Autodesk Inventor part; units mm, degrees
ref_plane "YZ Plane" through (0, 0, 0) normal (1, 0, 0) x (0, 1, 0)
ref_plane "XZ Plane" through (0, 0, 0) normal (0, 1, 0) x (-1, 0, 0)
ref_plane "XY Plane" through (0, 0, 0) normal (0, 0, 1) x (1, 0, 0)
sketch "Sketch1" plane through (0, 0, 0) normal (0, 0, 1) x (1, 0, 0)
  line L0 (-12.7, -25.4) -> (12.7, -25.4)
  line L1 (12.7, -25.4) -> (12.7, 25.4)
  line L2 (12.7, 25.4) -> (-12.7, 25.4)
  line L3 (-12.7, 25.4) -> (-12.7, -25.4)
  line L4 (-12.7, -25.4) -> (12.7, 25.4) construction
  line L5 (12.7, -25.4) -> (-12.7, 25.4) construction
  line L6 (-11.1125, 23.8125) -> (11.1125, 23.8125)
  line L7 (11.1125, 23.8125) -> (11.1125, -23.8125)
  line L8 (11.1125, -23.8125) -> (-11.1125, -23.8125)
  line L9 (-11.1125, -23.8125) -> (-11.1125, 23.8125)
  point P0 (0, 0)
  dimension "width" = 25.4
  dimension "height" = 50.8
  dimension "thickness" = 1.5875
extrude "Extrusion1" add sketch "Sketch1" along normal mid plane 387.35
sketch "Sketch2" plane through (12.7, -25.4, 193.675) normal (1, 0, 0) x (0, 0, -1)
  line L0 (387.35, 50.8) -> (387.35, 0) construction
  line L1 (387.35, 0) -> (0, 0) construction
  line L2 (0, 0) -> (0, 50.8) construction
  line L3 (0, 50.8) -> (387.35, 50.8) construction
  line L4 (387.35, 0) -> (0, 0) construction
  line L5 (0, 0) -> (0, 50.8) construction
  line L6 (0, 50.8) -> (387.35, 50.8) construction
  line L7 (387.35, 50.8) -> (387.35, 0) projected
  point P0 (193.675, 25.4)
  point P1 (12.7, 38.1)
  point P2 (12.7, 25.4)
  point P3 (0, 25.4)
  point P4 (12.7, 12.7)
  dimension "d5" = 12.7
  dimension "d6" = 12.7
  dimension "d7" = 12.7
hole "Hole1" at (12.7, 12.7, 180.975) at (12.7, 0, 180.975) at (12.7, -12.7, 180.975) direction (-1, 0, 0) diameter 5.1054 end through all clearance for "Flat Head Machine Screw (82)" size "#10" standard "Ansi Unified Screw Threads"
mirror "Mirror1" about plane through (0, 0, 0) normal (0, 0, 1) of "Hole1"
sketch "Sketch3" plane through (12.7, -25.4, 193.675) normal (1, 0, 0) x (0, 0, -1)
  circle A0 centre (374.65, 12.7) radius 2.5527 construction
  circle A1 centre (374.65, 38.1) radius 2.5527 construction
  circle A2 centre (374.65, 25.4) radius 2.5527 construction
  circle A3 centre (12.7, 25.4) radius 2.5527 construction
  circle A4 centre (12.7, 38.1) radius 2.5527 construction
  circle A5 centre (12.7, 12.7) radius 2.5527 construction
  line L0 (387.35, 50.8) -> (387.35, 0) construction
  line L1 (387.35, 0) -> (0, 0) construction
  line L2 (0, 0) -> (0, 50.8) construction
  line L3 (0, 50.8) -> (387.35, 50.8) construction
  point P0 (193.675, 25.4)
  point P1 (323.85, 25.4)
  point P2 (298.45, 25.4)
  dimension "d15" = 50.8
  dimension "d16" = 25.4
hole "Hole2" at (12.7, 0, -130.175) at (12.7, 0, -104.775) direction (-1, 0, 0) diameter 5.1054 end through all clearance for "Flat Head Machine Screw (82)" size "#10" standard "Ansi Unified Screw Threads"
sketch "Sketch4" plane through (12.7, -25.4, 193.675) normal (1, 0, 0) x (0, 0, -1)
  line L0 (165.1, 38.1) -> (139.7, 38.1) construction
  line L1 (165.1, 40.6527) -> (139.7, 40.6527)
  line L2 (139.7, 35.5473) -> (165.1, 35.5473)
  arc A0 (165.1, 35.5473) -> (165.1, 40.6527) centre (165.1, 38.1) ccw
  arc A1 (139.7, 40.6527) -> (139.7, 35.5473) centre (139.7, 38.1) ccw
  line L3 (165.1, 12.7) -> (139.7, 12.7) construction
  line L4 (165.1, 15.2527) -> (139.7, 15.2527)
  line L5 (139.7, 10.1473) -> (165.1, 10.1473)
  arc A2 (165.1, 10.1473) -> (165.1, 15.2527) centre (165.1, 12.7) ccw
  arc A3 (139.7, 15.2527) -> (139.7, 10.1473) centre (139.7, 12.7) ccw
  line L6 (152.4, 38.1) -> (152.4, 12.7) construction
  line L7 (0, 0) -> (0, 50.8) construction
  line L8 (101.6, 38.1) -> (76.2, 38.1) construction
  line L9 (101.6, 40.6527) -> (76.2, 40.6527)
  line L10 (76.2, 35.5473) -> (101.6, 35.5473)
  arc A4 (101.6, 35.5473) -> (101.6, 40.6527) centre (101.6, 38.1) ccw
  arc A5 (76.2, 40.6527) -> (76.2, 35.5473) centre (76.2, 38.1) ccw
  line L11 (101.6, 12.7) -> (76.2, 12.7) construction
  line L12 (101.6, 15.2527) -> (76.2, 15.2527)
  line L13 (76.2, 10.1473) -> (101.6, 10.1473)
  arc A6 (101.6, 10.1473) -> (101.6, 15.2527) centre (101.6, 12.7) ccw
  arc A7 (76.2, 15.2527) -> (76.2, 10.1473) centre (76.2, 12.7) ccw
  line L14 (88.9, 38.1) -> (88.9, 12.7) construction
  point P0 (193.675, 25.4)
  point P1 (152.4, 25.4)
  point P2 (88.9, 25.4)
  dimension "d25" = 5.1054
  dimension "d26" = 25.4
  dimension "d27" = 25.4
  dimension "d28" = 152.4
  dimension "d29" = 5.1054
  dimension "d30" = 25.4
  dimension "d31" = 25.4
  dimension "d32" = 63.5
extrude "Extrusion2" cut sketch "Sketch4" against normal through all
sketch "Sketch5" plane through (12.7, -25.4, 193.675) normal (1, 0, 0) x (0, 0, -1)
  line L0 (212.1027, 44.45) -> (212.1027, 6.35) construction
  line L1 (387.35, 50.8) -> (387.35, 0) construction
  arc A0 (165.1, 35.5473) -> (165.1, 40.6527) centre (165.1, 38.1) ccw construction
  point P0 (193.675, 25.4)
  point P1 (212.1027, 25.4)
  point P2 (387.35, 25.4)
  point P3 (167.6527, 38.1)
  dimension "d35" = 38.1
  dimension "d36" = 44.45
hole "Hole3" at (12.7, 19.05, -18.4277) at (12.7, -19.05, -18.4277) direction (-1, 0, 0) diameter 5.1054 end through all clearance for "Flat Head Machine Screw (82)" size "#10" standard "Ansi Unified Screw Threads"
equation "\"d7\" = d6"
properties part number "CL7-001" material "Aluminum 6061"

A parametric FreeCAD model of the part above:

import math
import FreeCAD as App
import Part
import Sketcher

V = App.Vector
Q = App.Units.Quantity

doc = App.newDocument("Part")
body = doc.addObject("PartDesign::Body", "Body")

sketch1 = body.newObject("Sketcher::SketchObject", "Sketch")
sketch1.AttachmentSupport = (doc.getObject("XY_Plane"), [""])
sketch1.MapMode = "FlatFace"
sketch1.addGeometry(Part.LineSegment(V(-12.7, 25.4, 0), V(-12.7, -25.4, 0)), False)
sketch1.addGeometry(Part.LineSegment(V(-12.7, -25.4, 0), V(12.7, -25.4, 0)), False)
sketch1.addGeometry(Part.LineSegment(V(12.7, -25.4, 0), V(12.7, 25.4, 0)), False)
sketch1.addGeometry(Part.LineSegment(V(12.7, 25.4, 0), V(-12.7, 25.4, 0)), False)
sketch1.addGeometry(Part.LineSegment(V(-11.1125, -23.8125, 0), V(-11.1125, 23.8125, 0)), False)
sketch1.addGeometry(Part.LineSegment(V(-11.1125, 23.8125, 0), V(11.1125, 23.8125, 0)), False)
sketch1.addGeometry(Part.LineSegment(V(11.1125, 23.8125, 0), V(11.1125, -23.8125, 0)), False)
sketch1.addGeometry(Part.LineSegment(V(11.1125, -23.8125, 0), V(-11.1125, -23.8125, 0)), False)
sketch1.addConstraint(Sketcher.Constraint("Coincident", 0, 2, 1, 1))
sketch1.addConstraint(Sketcher.Constraint("Coincident", 1, 2, 2, 1))
sketch1.addConstraint(Sketcher.Constraint("Coincident", 2, 2, 3, 1))
sketch1.addConstraint(Sketcher.Constraint("Coincident", 3, 2, 0, 1))
sketch1.addConstraint(Sketcher.Constraint("Coincident", 4, 2, 5, 1))
sketch1.addConstraint(Sketcher.Constraint("Coincident", 5, 2, 6, 1))
sketch1.addConstraint(Sketcher.Constraint("Coincident", 6, 2, 7, 1))
sketch1.addConstraint(Sketcher.Constraint("Coincident", 7, 2, 4, 1))
sketch1.addConstraint(Sketcher.Constraint("Vertical", 0))
sketch1.addConstraint(Sketcher.Constraint("Horizontal", 1))
sketch1.addConstraint(Sketcher.Constraint("Vertical", 2))
sketch1.addConstraint(Sketcher.Constraint("Horizontal", 3))
sketch1.addConstraint(Sketcher.Constraint("Vertical", 4))
sketch1.addConstraint(Sketcher.Constraint("Horizontal", 5))
sketch1.addConstraint(Sketcher.Constraint("Vertical", 6))
sketch1.addConstraint(Sketcher.Constraint("Horizontal", 7))
sketch1.addConstraint(Sketcher.Constraint("Symmetric", 0, 2, 2, 2, -1, 1))
sketch1.addConstraint(Sketcher.Constraint("Symmetric", 4, 2, 6, 2, -1, 1))
sketch1.addConstraint(Sketcher.Constraint("DistanceX", 1, 1, 1, 2, Q("1 in")))
sketch1.addConstraint(Sketcher.Constraint("DistanceY", 0, 2, 0, 1, Q("2 in")))
sketch1.addConstraint(Sketcher.Constraint("DistanceX", 3, 2, 4, 2, Q("0.0625 in")))
sketch1.addConstraint(Sketcher.Constraint("DistanceY", 4, 2, 3, 2, Q("0.0625 in")))
pad1 = body.newObject("PartDesign::Pad", "Pad")
pad1.Profile = sketch1
pad1.Length = Q("15.25 in")
pad1.Midplane = True

sketch2 = body.newObject("Sketcher::SketchObject", "Sketch001")
sketch2.AttachmentSupport = (doc.getObject("YZ_Plane"), [""])
sketch2.MapMode = "FlatFace"
sketch2.AttachmentOffset = App.Placement(V(0, 0, 0.5 * 25.4), App.Rotation())
sketch2.addGeometry(Part.Circle(V(12.7, 180.975, 0), V(0, 0, 1), 2.5527), False)
sketch2.addGeometry(Part.Circle(V(0, 180.975, 0), V(0, 0, 1), 2.5527), False)
sketch2.addGeometry(Part.Circle(V(-12.7, 180.975, 0), V(0, 0, 1), 2.5527), False)
sketch2.addConstraint(Sketcher.Constraint("Equal", 0, 1))
sketch2.addConstraint(Sketcher.Constraint("Equal", 1, 2))
sketch2.addConstraint(Sketcher.Constraint("Symmetric", 0, 3, 2, 3, -2))
sketch2.addConstraint(Sketcher.Constraint("PointOnObject", 1, 3, -2))
sketch2.addConstraint(Sketcher.Constraint("Horizontal", 0, 3, 1, 3))
sketch2.addConstraint(Sketcher.Constraint("Diameter", 0, Q("0.201 in")))
sketch2.addConstraint(Sketcher.Constraint("DistanceX", 2, 3, 0, 3, Q("1 in")))
sketch2.addConstraint(Sketcher.Constraint("DistanceY", -1, 1, 0, 3, Q("7.125 in")))
doc.recompute()
hole = body.newObject("PartDesign::Hole", "Hole")
hole.Profile = sketch2
hole.ThreadType = "None"
hole.Diameter = Q("0.201 in")
hole.DepthType = "ThroughAll"
doc.recompute()

mirrored = body.newObject("PartDesign::Mirrored", "Mirrored")
mirrored.Originals = [hole]
mirrored.MirrorPlane = (doc.getObject("XY_Plane"), [""])
body.Tip = mirrored

sketch3 = body.newObject("Sketcher::SketchObject", "Sketch002")
sketch3.AttachmentSupport = (doc.getObject("YZ_Plane"), [""])
sketch3.MapMode = "FlatFace"
sketch3.AttachmentOffset = App.Placement(V(0, 0, 0.5 * 25.4), App.Rotation())
sketch3.addGeometry(Part.Circle(V(0, -130.175, 0), V(0, 0, 1), 2.5527), False)
sketch3.addGeometry(Part.Circle(V(0, -104.775, 0), V(0, 0, 1), 2.5527), False)
sketch3.addConstraint(Sketcher.Constraint("Equal", 0, 1))
sketch3.addConstraint(Sketcher.Constraint("PointOnObject", 0, 3, -2))
sketch3.addConstraint(Sketcher.Constraint("PointOnObject", 1, 3, -2))
sketch3.addConstraint(Sketcher.Constraint("Diameter", 0, Q("0.201 in")))
sketch3.addConstraint(Sketcher.Constraint("DistanceY", 0, 3, 1, 3, Q("1 in")))
sketch3.addConstraint(Sketcher.Constraint("DistanceY", 0, 3, -1, 1, Q("5.125 in")))
doc.recompute()
hole2 = body.newObject("PartDesign::Hole", "Hole001")
hole2.Profile = sketch3
hole2.ThreadType = "None"
hole2.Diameter = Q("0.201 in")
hole2.DepthType = "ThroughAll"

sketch4 = body.newObject("Sketcher::SketchObject", "Sketch003")
sketch4.AttachmentSupport = (doc.getObject("YZ_Plane"), [""])
sketch4.MapMode = "FlatFace"
sketch4.AttachmentOffset = App.Placement(V(0, 0, 0.5 * 25.4), App.Rotation())
sketch4.addGeometry(Part.ArcOfCircle(Part.Circle(V(12.7, 28.575, 0), V(0, 0, 1), 2.5527), math.radians(180), math.radians(360)), False)
sketch4.addGeometry(Part.LineSegment(V(15.2527, 28.575, 0), V(15.2527, 53.975, 0)), False)
sketch4.addGeometry(Part.ArcOfCircle(Part.Circle(V(12.7, 53.975, 0), V(0, 0, 1), 2.5527), math.radians(0), math.radians(180)), False)
sketch4.addGeometry(Part.LineSegment(V(10.1473, 53.975, 0), V(10.1473, 28.575, 0)), False)
sketch4.addGeometry(Part.ArcOfCircle(Part.Circle(V(-12.7, 28.575, 0), V(0, 0, 1), 2.5527), math.radians(180), math.radians(360)), False)
sketch4.addGeometry(Part.LineSegment(V(-10.1473, 28.575, 0), V(-10.1473, 53.975, 0)), False)
sketch4.addGeometry(Part.ArcOfCircle(Part.Circle(V(-12.7, 53.975, 0), V(0, 0, 1), 2.5527), math.radians(0), math.radians(180)), False)
sketch4.addGeometry(Part.LineSegment(V(-15.2527, 53.975, 0), V(-15.2527, 28.575, 0)), False)
sketch4.addGeometry(Part.ArcOfCircle(Part.Circle(V(12.7, 92.075, 0), V(0, 0, 1), 2.5527), math.radians(180), math.radians(360)), False)
sketch4.addGeometry(Part.LineSegment(V(15.2527, 92.075, 0), V(15.2527, 117.475, 0)), False)
sketch4.addGeometry(Part.ArcOfCircle(Part.Circle(V(12.7, 117.475, 0), V(0, 0, 1), 2.5527), math.radians(0), math.radians(180)), False)
sketch4.addGeometry(Part.LineSegment(V(10.1473, 117.475, 0), V(10.1473, 92.075, 0)), False)
sketch4.addGeometry(Part.ArcOfCircle(Part.Circle(V(-12.7, 92.075, 0), V(0, 0, 1), 2.5527), math.radians(180), math.radians(360)), False)
sketch4.addGeometry(Part.LineSegment(V(-10.1473, 92.075, 0), V(-10.1473, 117.475, 0)), False)
sketch4.addGeometry(Part.ArcOfCircle(Part.Circle(V(-12.7, 117.475, 0), V(0, 0, 1), 2.5527), math.radians(0), math.radians(180)), False)
sketch4.addGeometry(Part.LineSegment(V(-15.2527, 117.475, 0), V(-15.2527, 92.075, 0)), False)
sketch4.addConstraint(Sketcher.Constraint("Tangent", 0, 2, 1, 1))
sketch4.addConstraint(Sketcher.Constraint("Tangent", 1, 2, 2, 1))
sketch4.addConstraint(Sketcher.Constraint("Tangent", 2, 2, 3, 1))
sketch4.addConstraint(Sketcher.Constraint("Tangent", 3, 2, 0, 1))
sketch4.addConstraint(Sketcher.Constraint("Tangent", 4, 2, 5, 1))
sketch4.addConstraint(Sketcher.Constraint("Tangent", 5, 2, 6, 1))
sketch4.addConstraint(Sketcher.Constraint("Tangent", 6, 2, 7, 1))
sketch4.addConstraint(Sketcher.Constraint("Tangent", 7, 2, 4, 1))
sketch4.addConstraint(Sketcher.Constraint("Tangent", 8, 2, 9, 1))
sketch4.addConstraint(Sketcher.Constraint("Tangent", 9, 2, 10, 1))
sketch4.addConstraint(Sketcher.Constraint("Tangent", 10, 2, 11, 1))
sketch4.addConstraint(Sketcher.Constraint("Tangent", 11, 2, 8, 1))
sketch4.addConstraint(Sketcher.Constraint("Tangent", 12, 2, 13, 1))
sketch4.addConstraint(Sketcher.Constraint("Tangent", 13, 2, 14, 1))
sketch4.addConstraint(Sketcher.Constraint("Tangent", 14, 2, 15, 1))
sketch4.addConstraint(Sketcher.Constraint("Tangent", 15, 2, 12, 1))
sketch4.addConstraint(Sketcher.Constraint("Vertical", 1))
sketch4.addConstraint(Sketcher.Constraint("Vertical", 3))
sketch4.addConstraint(Sketcher.Constraint("Vertical", 5))
sketch4.addConstraint(Sketcher.Constraint("Vertical", 7))
sketch4.addConstraint(Sketcher.Constraint("Vertical", 9))
sketch4.addConstraint(Sketcher.Constraint("Vertical", 11))
sketch4.addConstraint(Sketcher.Constraint("Vertical", 13))
sketch4.addConstraint(Sketcher.Constraint("Vertical", 15))
sketch4.addConstraint(Sketcher.Constraint("Equal", 2, 4))
sketch4.addConstraint(Sketcher.Constraint("Equal", 6, 8))
sketch4.addConstraint(Sketcher.Constraint("Equal", 10, 12))
sketch4.addConstraint(Sketcher.Constraint("Symmetric", 0, 3, 4, 3, -2))
sketch4.addConstraint(Sketcher.Constraint("Symmetric", 8, 3, 12, 3, -2))
sketch4.addConstraint(Sketcher.Constraint("Horizontal", 2, 3, 6, 3))
sketch4.addConstraint(Sketcher.Constraint("Horizontal", 10, 3, 14, 3))
sketch4.addConstraint(Sketcher.Constraint("Vertical", 2, 3, 8, 3))
sketch4.addConstraint(Sketcher.Constraint("Equal", 7, 9))
sketch4.addConstraint(Sketcher.Constraint("DistanceY", 1, 1, 1, 2, Q("1 in")))
sketch4.addConstraint(Sketcher.Constraint("DistanceX", 4, 3, 0, 3, Q("1 in")))
sketch4.addConstraint(Sketcher.Constraint("Radius", 0, Q("0.1005 in")))
sketch4.addConstraint(Sketcher.Constraint("DistanceY", 0, 3, 8, 3, Q("2.5 in")))
sketch4.addConstraint(Sketcher.Constraint("DistanceY", -1, 1, 0, 3, Q("1.125 in")))
pocket1 = body.newObject("PartDesign::Pocket", "Pocket")
pocket1.Profile = sketch4
pocket1.Type = "ThroughAll"

sketch5 = body.newObject("Sketcher::SketchObject", "Sketch004")
sketch5.AttachmentSupport = (doc.getObject("YZ_Plane"), [""])
sketch5.MapMode = "FlatFace"
sketch5.AttachmentOffset = App.Placement(V(0, 0, 0.5 * 25.4), App.Rotation())
sketch5.addGeometry(Part.Circle(V(19.05, -18.4277, 0), V(0, 0, 1), 2.5527), False)
sketch5.addGeometry(Part.Circle(V(-19.05, -18.4277, 0), V(0, 0, 1), 2.5527), False)
sketch5.addConstraint(Sketcher.Constraint("Equal", 0, 1))
sketch5.addConstraint(Sketcher.Constraint("Symmetric", 0, 3, 1, 3, -2))
sketch5.addConstraint(Sketcher.Constraint("Diameter", 0, Q("0.201 in")))
sketch5.addConstraint(Sketcher.Constraint("DistanceX", 1, 3, 0, 3, Q("1.5 in")))
sketch5.addConstraint(Sketcher.Constraint("DistanceY", 0, 3, -1, 1, Q("0.7255 in")))
doc.recompute()
hole3 = body.newObject("PartDesign::Hole", "Hole002")
hole3.Profile = sketch5
hole3.ThreadType = "None"
hole3.Diameter = Q("0.201 in")
hole3.DepthType = "ThroughAll"

doc.recompute()
